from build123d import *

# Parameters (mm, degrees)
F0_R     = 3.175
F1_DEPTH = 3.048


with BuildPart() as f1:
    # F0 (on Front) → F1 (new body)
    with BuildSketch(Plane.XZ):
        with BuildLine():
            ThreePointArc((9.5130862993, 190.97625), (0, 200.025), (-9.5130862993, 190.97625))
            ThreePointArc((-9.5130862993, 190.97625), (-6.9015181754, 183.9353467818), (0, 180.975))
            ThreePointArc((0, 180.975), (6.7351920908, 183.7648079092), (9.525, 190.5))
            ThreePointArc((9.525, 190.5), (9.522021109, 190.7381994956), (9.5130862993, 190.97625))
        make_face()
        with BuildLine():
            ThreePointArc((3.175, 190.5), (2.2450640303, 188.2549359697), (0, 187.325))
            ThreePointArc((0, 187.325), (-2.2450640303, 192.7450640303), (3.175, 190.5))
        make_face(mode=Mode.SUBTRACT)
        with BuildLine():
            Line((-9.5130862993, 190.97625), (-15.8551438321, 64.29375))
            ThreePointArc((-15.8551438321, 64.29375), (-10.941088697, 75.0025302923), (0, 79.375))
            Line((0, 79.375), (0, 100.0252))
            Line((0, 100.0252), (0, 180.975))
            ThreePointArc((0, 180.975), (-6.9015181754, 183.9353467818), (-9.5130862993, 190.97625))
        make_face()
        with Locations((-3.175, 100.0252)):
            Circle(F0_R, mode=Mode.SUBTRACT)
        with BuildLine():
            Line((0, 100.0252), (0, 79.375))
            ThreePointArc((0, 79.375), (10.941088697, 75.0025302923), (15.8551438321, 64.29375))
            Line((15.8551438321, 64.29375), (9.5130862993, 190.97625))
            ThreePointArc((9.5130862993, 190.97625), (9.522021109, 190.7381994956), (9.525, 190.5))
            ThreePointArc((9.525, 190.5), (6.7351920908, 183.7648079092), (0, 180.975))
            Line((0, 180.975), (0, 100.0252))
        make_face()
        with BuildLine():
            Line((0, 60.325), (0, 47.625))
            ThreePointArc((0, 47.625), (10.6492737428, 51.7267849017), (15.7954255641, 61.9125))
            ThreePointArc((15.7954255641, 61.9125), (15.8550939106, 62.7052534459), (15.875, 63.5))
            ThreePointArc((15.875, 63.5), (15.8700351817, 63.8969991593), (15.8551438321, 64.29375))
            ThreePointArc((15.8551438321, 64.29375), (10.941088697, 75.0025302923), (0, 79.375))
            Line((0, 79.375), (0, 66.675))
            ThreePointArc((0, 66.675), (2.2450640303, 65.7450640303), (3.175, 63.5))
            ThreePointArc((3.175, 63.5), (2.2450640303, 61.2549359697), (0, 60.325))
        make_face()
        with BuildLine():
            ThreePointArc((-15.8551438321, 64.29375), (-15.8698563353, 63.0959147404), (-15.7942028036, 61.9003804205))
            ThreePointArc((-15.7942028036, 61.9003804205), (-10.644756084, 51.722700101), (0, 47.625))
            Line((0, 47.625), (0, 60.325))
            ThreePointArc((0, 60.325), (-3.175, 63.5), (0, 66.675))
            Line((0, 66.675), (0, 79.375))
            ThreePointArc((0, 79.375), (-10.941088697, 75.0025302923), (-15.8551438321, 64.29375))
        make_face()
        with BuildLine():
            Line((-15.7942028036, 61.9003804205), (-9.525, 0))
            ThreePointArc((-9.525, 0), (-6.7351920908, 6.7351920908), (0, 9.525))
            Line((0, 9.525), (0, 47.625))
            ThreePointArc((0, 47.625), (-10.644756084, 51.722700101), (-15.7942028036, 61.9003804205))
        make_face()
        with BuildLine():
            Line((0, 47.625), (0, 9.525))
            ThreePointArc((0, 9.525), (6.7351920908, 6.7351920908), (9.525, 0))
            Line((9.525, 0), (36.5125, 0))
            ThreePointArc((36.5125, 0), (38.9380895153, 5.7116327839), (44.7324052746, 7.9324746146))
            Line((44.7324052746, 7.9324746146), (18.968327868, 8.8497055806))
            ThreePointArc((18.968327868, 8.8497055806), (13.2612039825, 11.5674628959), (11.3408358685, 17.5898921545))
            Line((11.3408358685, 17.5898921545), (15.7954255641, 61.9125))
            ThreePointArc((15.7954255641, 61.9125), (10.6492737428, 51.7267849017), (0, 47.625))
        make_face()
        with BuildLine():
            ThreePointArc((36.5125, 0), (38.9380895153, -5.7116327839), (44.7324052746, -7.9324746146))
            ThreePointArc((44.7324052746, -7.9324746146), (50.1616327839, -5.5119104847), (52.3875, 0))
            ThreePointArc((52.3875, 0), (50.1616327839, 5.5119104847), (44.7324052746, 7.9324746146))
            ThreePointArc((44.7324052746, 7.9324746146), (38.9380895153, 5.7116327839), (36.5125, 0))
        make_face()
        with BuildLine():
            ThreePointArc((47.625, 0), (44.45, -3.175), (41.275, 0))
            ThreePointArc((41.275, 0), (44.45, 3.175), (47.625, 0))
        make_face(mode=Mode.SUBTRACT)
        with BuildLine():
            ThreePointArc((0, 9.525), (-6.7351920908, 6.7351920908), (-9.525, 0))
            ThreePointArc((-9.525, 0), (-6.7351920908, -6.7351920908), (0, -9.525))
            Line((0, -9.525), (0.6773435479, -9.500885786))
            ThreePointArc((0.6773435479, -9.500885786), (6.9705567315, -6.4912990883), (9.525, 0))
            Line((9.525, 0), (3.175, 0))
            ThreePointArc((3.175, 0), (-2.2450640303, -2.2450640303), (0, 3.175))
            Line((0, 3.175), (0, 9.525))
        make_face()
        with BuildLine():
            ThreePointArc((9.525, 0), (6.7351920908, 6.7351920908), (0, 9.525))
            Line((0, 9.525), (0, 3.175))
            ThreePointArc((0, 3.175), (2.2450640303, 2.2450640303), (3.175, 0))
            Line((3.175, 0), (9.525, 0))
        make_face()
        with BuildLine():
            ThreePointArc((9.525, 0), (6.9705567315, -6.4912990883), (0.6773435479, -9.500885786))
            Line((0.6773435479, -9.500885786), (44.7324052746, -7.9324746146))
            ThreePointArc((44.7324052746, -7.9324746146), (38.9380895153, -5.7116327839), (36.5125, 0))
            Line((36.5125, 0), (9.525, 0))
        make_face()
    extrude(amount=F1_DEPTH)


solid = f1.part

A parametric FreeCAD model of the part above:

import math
import FreeCAD as App
import Part
import Sketcher
from FreeCAD import Vector
Q = App.Units.Quantity

doc = App.newDocument("Part")
params = doc.addObject("Spreadsheet::Sheet", "Params")
for row, (alias, value) in enumerate([
    ("sketch1_diameter", "0.25 in"),
    ("sketch1_radius", "0.3125 in"),
    ("sketch1_radius2", "0.313 in"),
    ("sketch1_radius3", "0.625 in"),
    ("sketch1_radius4", "0.375 in"),
    ("pad1_length", "0.12 in"),
], start=1):
    params.set(f"A{row}", alias)
    params.set(f"B{row}", "=" + value)
    params.setAlias(f"B{row}", alias)

body = doc.addObject("PartDesign::Body", "Body")

# Sketch on XZ plane
sketch1 = doc.addObject("Sketcher::SketchObject", "Sketch")
body.addObject(sketch1)
sketch1.AttachmentSupport = (doc.XZ_Plane, [""])
sketch1.MapMode = "FlatFace"
sketch1.addGeometry([
    Part.ArcOfCircle(Part.Circle(Vector(44.5, 0, 0), Vector(0, 0, 1), 7.9), math.radians(-88), math.radians(0)),  # 0
    Part.ArcOfCircle(Part.Circle(Vector(44.5, 0, 0), Vector(0, 0, 1), 7.9), math.radians(0), math.radians(88)),  # 1
    Part.LineSegment(Vector(44.7, 7.9, 0), Vector(19, 8.8, 0)),  # 2
    Part.ArcOfCircle(Part.Circle(Vector(19.3, 16.8, 0), Vector(0, 0, 1), 8), math.radians(174), math.radians(268)),  # 3
    Part.LineSegment(Vector(11.3, 17.6, 0), Vector(15.8, 61.9, 0)),  # 4
    Part.ArcOfCircle(Part.Circle(Vector(0, 63.5, 0), Vector(0, 0, 1), 15.9), math.radians(-5.74), math.radians(0)),  # 5
    Part.ArcOfCircle(Part.Circle(Vector(0, 63.5, 0), Vector(0, 0, 1), 15.9), math.radians(0), math.radians(2.87)),  # 6
    Part.LineSegment(Vector(15.9, 64.3, 0), Vector(9.5, 191, 0)),  # 7
    Part.ArcOfCircle(Part.Circle(Vector(0, 190.5, 0), Vector(0, 0, 1), 9.5), math.radians(3), math.radians(177)),  # 8
    Part.LineSegment(Vector(-9.5, 191, 0), Vector(-15.9, 64.3, 0)),  # 9
    Part.ArcOfCircle(Part.Circle(Vector(0, 63.5, 0), Vector(0, 0, 1), 15.9), math.radians(177.13), math.radians(185.78)),  # 10
    Part.LineSegment(Vector(-15.8, 61.9, 0), Vector(-9.5, 0, 0)),  # 11
    Part.ArcOfCircle(Part.Circle(Vector(0, 0, 0), Vector(0, 0, 1), 9.5), math.radians(180), math.radians(270)),  # 12
    Part.LineSegment(Vector(0, -9.5, 0), Vector(0.7, -9.5, 0)),  # 13
    Part.LineSegment(Vector(0.7, -9.5, 0), Vector(44.7, -7.9, 0)),  # 14
    Part.ArcOfCircle(Part.Circle(Vector(0, 0, 0), Vector(0, 0, 1), 3.2), math.radians(90), math.radians(360)),  # 15
    Part.ArcOfCircle(Part.Circle(Vector(0, 0, 0), Vector(0, 0, 1), 3.2), math.radians(0), math.radians(90)),  # 16
    Part.ArcOfCircle(Part.Circle(Vector(0, 63.5, 0), Vector(0, 0, 1), 3.2), math.radians(0), math.radians(90)),  # 17
    Part.ArcOfCircle(Part.Circle(Vector(0, 63.5, 0), Vector(0, 0, 1), 3.2), math.radians(-90), math.radians(0)),  # 18
    Part.ArcOfCircle(Part.Circle(Vector(0, 63.5, 0), Vector(0, 0, 1), 3.2), math.radians(90), math.radians(270)),  # 19
    Part.Circle(Vector(44.5, 0, 0), Vector(0, 0, 1), 3.2),  # 20
    Part.Circle(Vector(-3.2, 100, 0), Vector(0, 0, 1), 3.2),  # 21
    Part.ArcOfCircle(Part.Circle(Vector(0, 190.5, 0), Vector(0, 0, 1), 3.2), math.radians(0), math.radians(270)),  # 22
    Part.ArcOfCircle(Part.Circle(Vector(0, 190.5, 0), Vector(0, 0, 1), 3.2), math.radians(-90), math.radians(0)),  # 23
], False)
sketch1.addConstraint([
    Sketcher.Constraint("Tangent", 0, 2, 1, 1),
    Sketcher.Constraint("Tangent", 1, 2, 2, 1),
    Sketcher.Constraint("Tangent", 2, 2, 3, 2),
    Sketcher.Constraint("Tangent", 3, 1, 4, 1),
    Sketcher.Constraint("Tangent", 4, 2, 5, 1),
    Sketcher.Constraint("Tangent", 5, 2, 6, 1),
    Sketcher.Constraint("Tangent", 6, 2, 7, 1),
    Sketcher.Constraint("Tangent", 7, 2, 8, 1),
    Sketcher.Constraint("Tangent", 8, 2, 9, 1),
    Sketcher.Constraint("Tangent", 9, 2, 10, 1),
    Sketcher.Constraint("Tangent", 10, 2, 11, 1),
    Sketcher.Constraint("Coincident", 11, 2, 12, 1),
    Sketcher.Constraint("Coincident", 12, 2, 13, 1),
    Sketcher.Constraint("Coincident", 13, 2, 14, 1),
    Sketcher.Constraint("Tangent", 14, 2, 0, 1),
    Sketcher.Constraint("Tangent", 15, 1, 16, 2),
    Sketcher.Constraint("Coincident", 16, 1, 15, 2),
    Sketcher.Constraint("Tangent", 17, 1, 18, 2),
    Sketcher.Constraint("Tangent", 18, 1, 19, 2),
    Sketcher.Constraint("Tangent", 19, 1, 17, 2),
    Sketcher.Constraint("Tangent", 22, 1, 23, 2),
    Sketcher.Constraint("Coincident", 23, 1, 22, 2),
    Sketcher.Constraint("Coincident", 12, 3, -1, 1),
    Sketcher.Constraint("Coincident", 15, 3, -1, 1),
    Sketcher.Constraint("Coincident", 10, 3, 5, 3),
    Sketcher.Constraint("Coincident", 17, 3, 5, 3),
    Sketcher.Constraint("Coincident", 20, 3, 0, 3),
    Sketcher.Constraint("Coincident", 22, 3, 8, 3),
    Sketcher.Constraint("Equal", 0, 1),
    Sketcher.Constraint("Equal", 5, 6),
    Sketcher.Constraint("Equal", 6, 10),
    Sketcher.Constraint("Equal", 8, 12),
    Sketcher.Constraint("Equal", 16, 17),
    Sketcher.Constraint("Equal", 19, 20),
    Sketcher.Constraint("Equal", 20, 21),
    Sketcher.Constraint("Equal", 21, 22),
    Sketcher.Constraint("Symmetric", 7, 2, 8, 2, -2),
    Sketcher.Constraint("Symmetric", 1, 2, 14, 2, -1),
    Sketcher.Constraint("PointOnObject", 0, 2, -1),
    Sketcher.Constraint("PointOnObject", 11, 2, -1),
    Sketcher.Constraint("PointOnObject", 12, 2, -2),
    Sketcher.Constraint("PointOnObject", 15, 1, -2),
    Sketcher.Constraint("PointOnObject", 16, 1, -1),
    Sketcher.Constraint("PointOnObject", 18, 1, -2),
    Sketcher.Constraint("PointOnObject", 19, 1, -2),
    Sketcher.Constraint("PointOnObject", 23, 1, -2),
    Sketcher.Constraint("Parallel", 13, 14),
    Sketcher.Constraint("Horizontal", 19, 3, 5, 2),
    Sketcher.Constraint("Horizontal", 5, 2, 17, 1),
    Sketcher.Constraint("Horizontal", 23, 3, 22, 1),
    Sketcher.Constraint("Diameter", 20, Q("0.25 in")),
    Sketcher.Constraint("Radius", 0, Q("0.3125 in")),
    Sketcher.Constraint("Radius", 3, Q("0.313 in")),
    Sketcher.Constraint("Radius", 5, Q("0.625 in")),
    Sketcher.Constraint("Radius", 8, Q("0.375 in")),
    Sketcher.Constraint("DistanceY", 6, 3, 8, 3, Q("5 in")),
    Sketcher.Constraint("DistanceY", -1, 1, 5, 3, Q("2.5 in")),
    Sketcher.Constraint("DistanceX", -1, 1, 0, 3, Q("1.75 in")),
    Sketcher.Constraint("DistanceX", 21, 3, -1, 1, Q("0.125 in")),
    Sketcher.Constraint("DistanceY", -1, 1, 21, 3, Q("3.938 in")),
    Sketcher.Constraint("DistanceY", -1, 1, 4, 2, Q("2.4375 in")),
    Sketcher.Constraint("Distance", 14, 44.082972),
])
sketch1.setExpression("Constraints[50]", "Params.sketch1_diameter")
sketch1.setExpression("Constraints[51]", "Params.sketch1_radius")
sketch1.setExpression("Constraints[52]", "Params.sketch1_radius2")
sketch1.setExpression("Constraints[53]", "Params.sketch1_radius3")
sketch1.setExpression("Constraints[54]", "Params.sketch1_radius4")
pad1 = doc.addObject("PartDesign::Pad", "Pad")
body.addObject(pad1)
pad1.Profile = sketch1
pad1.setExpression("Length", "Params.pad1_length")

doc.recompute()
